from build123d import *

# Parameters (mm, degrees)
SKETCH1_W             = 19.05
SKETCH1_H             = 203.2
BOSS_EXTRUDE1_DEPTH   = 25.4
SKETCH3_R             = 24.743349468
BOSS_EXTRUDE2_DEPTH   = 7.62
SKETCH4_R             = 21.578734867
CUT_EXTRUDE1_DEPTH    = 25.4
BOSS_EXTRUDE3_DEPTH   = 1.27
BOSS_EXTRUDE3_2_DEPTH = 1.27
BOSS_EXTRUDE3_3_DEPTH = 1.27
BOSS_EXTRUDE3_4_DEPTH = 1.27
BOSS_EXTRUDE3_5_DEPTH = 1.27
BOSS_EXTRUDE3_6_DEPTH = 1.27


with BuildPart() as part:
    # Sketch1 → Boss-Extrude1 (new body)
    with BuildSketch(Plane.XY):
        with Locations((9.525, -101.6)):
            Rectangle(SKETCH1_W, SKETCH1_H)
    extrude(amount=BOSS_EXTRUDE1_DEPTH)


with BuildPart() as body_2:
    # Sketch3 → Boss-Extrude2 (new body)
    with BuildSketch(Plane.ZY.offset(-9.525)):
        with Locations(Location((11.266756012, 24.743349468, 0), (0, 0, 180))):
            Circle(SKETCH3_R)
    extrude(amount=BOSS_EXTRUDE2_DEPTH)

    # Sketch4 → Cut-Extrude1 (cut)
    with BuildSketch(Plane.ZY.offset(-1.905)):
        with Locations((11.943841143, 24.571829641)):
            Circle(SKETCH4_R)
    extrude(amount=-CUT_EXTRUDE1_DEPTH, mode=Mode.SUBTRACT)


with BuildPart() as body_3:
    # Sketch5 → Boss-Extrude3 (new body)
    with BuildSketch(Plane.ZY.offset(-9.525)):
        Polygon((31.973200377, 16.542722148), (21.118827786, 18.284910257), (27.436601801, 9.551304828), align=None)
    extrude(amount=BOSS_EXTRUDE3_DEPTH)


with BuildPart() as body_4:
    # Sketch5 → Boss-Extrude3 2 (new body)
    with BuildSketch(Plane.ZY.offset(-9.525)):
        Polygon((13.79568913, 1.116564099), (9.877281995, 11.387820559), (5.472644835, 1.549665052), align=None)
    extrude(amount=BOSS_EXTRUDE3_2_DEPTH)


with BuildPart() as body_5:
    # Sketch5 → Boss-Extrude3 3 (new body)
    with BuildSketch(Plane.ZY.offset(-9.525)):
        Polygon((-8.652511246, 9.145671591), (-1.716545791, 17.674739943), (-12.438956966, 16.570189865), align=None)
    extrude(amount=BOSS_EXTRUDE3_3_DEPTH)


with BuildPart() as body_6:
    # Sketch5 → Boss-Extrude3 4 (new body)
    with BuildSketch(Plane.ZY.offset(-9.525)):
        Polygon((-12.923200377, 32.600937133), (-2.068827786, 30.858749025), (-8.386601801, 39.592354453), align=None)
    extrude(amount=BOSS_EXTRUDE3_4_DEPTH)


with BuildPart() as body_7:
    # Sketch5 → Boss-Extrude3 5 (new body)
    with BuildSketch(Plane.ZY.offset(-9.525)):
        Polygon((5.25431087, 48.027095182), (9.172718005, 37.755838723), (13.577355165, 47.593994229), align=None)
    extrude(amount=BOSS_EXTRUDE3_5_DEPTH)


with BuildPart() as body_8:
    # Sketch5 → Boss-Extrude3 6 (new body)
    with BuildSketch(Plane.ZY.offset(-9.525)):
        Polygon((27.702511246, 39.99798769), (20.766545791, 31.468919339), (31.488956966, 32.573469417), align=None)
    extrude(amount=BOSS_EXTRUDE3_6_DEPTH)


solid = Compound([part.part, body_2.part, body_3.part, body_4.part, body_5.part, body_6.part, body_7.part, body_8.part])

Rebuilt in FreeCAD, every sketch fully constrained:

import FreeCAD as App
import Part
import Sketcher
from FreeCAD import Vector
Q = App.Units.Quantity


def add_polygon(sketch, points):
    """Adds a closed chain of lines whose ends are joined by coincident constraints."""
    first, n = sketch.GeometryCount, len(points)
    for a, b in zip(points, points[1:] + points[:1]):
        sketch.addGeometry(Part.LineSegment(App.Vector(*a, 0), App.Vector(*b, 0)), False)
    for i in range(n):
        sketch.addConstraint(Sketcher.Constraint("Coincident", first + i, 2, first + (i + 1) % n, 1))

doc = App.newDocument("Part")
body = doc.addObject("PartDesign::Body", "Body")

sketch1 = body.newObject("Sketcher::SketchObject", "Sketch")
sketch1.AttachmentSupport = (doc.getObject("XY_Plane"), [""])
sketch1.MapMode = "FlatFace"
add_polygon(sketch1, [(0, 0), (0, -203), (19, -203), (19, 0)])
sketch1.addConstraint([
    Sketcher.Constraint("Vertical", 0),
    Sketcher.Constraint("Horizontal", 1),
    Sketcher.Constraint("Vertical", 2),
    Sketcher.Constraint("Horizontal", 3),
    Sketcher.Constraint("Coincident", 3, 2, -1, 1),
    Sketcher.Constraint("DistanceY", 0, 2, 0, 1, Q("8 in")),
    Sketcher.Constraint("DistanceX", 1, 1, 1, 2, Q("0.75 in")),
])
pad1 = body.newObject("PartDesign::Pad", "Pad")
pad1.Profile = sketch1
pad1.Length = Q("1 in")
body2 = doc.addObject("PartDesign::Body", "Body001")

sketch2 = body2.newObject("Sketcher::SketchObject", "Sketch001")
sketch2.AttachmentSupport = (doc.getObject("YZ_Plane001"), [""])
sketch2.MapMode = "FlatFace"
sketch2.AttachmentOffset = App.Placement(Vector(0, 0, 0.375 * 25.4), App.Rotation())
sketch2.addGeometry(Part.Circle(Vector(25, 11, 0), Vector(0, 0, 1), 25), False)
sketch2.addConstraint([
    Sketcher.Constraint("Diameter", 0, 49.486699),
    Sketcher.Constraint("DistanceX", -1, 1, 0, 3, 24.743349),
    Sketcher.Constraint("DistanceY", -1, 1, 0, 3, 11.266756),
])
pad2 = body2.newObject("PartDesign::Pad", "Pad001")
pad2.Profile = sketch2
pad2.Length = Q("0.3 in")
pad2.Reversed = True

sketch3 = body2.newObject("Sketcher::SketchObject", "Sketch002")
sketch3.AttachmentSupport = (doc.getObject("YZ_Plane001"), [""])
sketch3.MapMode = "FlatFace"
sketch3.AttachmentOffset = App.Placement(Vector(0, 0, 0.075 * 25.4), App.Rotation())
sketch3.addGeometry(Part.Circle(Vector(25, 12, 0), Vector(0, 0, 1), 22), False)
sketch3.addConstraint([
    Sketcher.Constraint("Diameter", 0, 43.15747),
    Sketcher.Constraint("DistanceX", -1, 1, 0, 3, 24.57183),
    Sketcher.Constraint("DistanceY", -1, 1, 0, 3, 11.943841),
])
pocket1 = body2.newObject("PartDesign::Pocket", "Pocket")
pocket1.Profile = sketch3
pocket1.Length = Q("1 in")
pocket1.Reversed = True
body3 = doc.addObject("PartDesign::Body", "Body002")

sketch4 = body3.newObject("Sketcher::SketchObject", "Sketch003")
sketch4.AttachmentSupport = (doc.getObject("YZ_Plane002"), [""])
sketch4.MapMode = "FlatFace"
sketch4.AttachmentOffset = App.Placement(Vector(0, 0, 0.375 * 25.4), App.Rotation())
add_polygon(sketch4, [(17, 32), (18, 21), (10, 27)])
sketch4.addConstraint([
    Sketcher.Constraint("Distance", 0, 10.993299),
    Sketcher.Constraint("DistanceY", -1, 1, 1, 2, 27.436602),
    Sketcher.Constraint("DistanceY", -1, 1, 2, 2, 31.9732),
    Sketcher.Constraint("DistanceX", -1, 1, 0, 2, 18.28491),
    Sketcher.Constraint("DistanceX", 2, 2, 0, 2, 1.742188),
    Sketcher.Constraint("Distance", 1, 10.779153),
])
pad3 = body3.newObject("PartDesign::Pad", "Pad002")
pad3.Profile = sketch4
pad3.Length = Q("0.05 in")
pad3.Reversed = True
body4 = doc.addObject("PartDesign::Body", "Body003")

sketch5 = body4.newObject("Sketcher::SketchObject", "Sketch004")
sketch5.AttachmentSupport = (doc.getObject("YZ_Plane003"), [""])
sketch5.MapMode = "FlatFace"
sketch5.AttachmentOffset = App.Placement(Vector(0, 0, 0.375 * 25.4), App.Rotation())
add_polygon(sketch5, [(1, 14), (11, 10), (2, 5)])
sketch5.addConstraint([
    Sketcher.Constraint("Distance", 0, 10.993299),
    Sketcher.Constraint("DistanceX", 2, 2, 1, 2, 0.433101),
    Sketcher.Constraint("DistanceX", -1, 1, 0, 2, 11.387821),
    Sketcher.Constraint("DistanceY", -1, 1, 0, 2, 9.877282),
    Sketcher.Constraint("DistanceY", -1, 1, 2, 2, 13.795689),
    Sketcher.Constraint("Distance", 1, 10.779153),
])
pad4 = body4.newObject("PartDesign::Pad", "Pad003")
pad4.Profile = sketch5
pad4.Length = Q("0.05 in")
pad4.Reversed = True
body5 = doc.addObject("PartDesign::Body", "Body004")

sketch6 = body5.newObject("Sketcher::SketchObject", "Sketch005")
sketch6.AttachmentSupport = (doc.getObject("YZ_Plane004"), [""])
sketch6.MapMode = "FlatFace"
sketch6.AttachmentOffset = App.Placement(Vector(0, 0, 0.375 * 25.4), App.Rotation())
add_polygon(sketch6, [(9, -9), (18, -2), (17, -12)])
sketch6.addConstraint([
    Sketcher.Constraint("Distance", 0, 10.993299),
    Sketcher.Constraint("DistanceX", -1, 1, 0, 2, 17.67474),
    Sketcher.Constraint("DistanceX", -1, 1, 1, 2, 16.57019),
    Sketcher.Constraint("DistanceX", -1, 1, 2, 2, 9.145672),
    Sketcher.Constraint("DistanceY", 2, 2, -1, 1, 8.652511),
    Sketcher.Constraint("DistanceY", 1, 2, 0, 2, 10.722411),
])
pad5 = body5.newObject("PartDesign::Pad", "Pad004")
pad5.Profile = sketch6
pad5.Length = Q("0.05 in")
pad5.Reversed = True
body6 = doc.addObject("PartDesign::Body", "Body005")

sketch7 = body6.newObject("Sketcher::SketchObject", "Sketch006")
sketch7.AttachmentSupport = (doc.getObject("YZ_Plane005"), [""])
sketch7.MapMode = "FlatFace"
sketch7.AttachmentOffset = App.Placement(Vector(0, 0, 0.375 * 25.4), App.Rotation())
add_polygon(sketch7, [(33, -13), (31, -2), (40, -8)])
sketch7.addConstraint([
    Sketcher.Constraint("Distance", 0, 10.993299),
    Sketcher.Constraint("DistanceY", 1, 2, -1, 1, 8.386602),
    Sketcher.Constraint("DistanceY", 2, 2, -1, 1, 12.9232),
    Sketcher.Constraint("DistanceX", -1, 1, 0, 2, 30.858749),
    Sketcher.Constraint("DistanceX", 0, 2, 2, 2, 1.742188),
    Sketcher.Constraint("Distance", 1, 10.779153),
])
pad6 = body6.newObject("PartDesign::Pad", "Pad005")
pad6.Profile = sketch7
pad6.Length = Q("0.05 in")
pad6.Reversed = True
body7 = doc.addObject("PartDesign::Body", "Body006")

sketch8 = body7.newObject("Sketcher::SketchObject", "Sketch007")
sketch8.AttachmentSupport = (doc.getObject("YZ_Plane006"), [""])
sketch8.MapMode = "FlatFace"
sketch8.AttachmentOffset = App.Placement(Vector(0, 0, 0.375 * 25.4), App.Rotation())
add_polygon(sketch8, [(48, 5), (38, 9), (48, 14)])
sketch8.addConstraint([
    Sketcher.Constraint("Distance", 0, 10.993299),
    Sketcher.Constraint("DistanceX", 1, 2, 2, 2, 0.433101),
    Sketcher.Constraint("DistanceX", -1, 1, 0, 2, 37.755839),
    Sketcher.Constraint("DistanceY", -1, 1, 0, 2, 9.172718),
    Sketcher.Constraint("DistanceY", -1, 1, 2, 2, 5.254311),
    Sketcher.Constraint("Distance", 1, 10.779153),
])
pad7 = body7.newObject("PartDesign::Pad", "Pad006")
pad7.Profile = sketch8
pad7.Length = Q("0.05 in")
pad7.Reversed = True
body8 = doc.addObject("PartDesign::Body", "Body007")

sketch9 = body8.newObject("Sketcher::SketchObject", "Sketch008")
sketch9.AttachmentSupport = (doc.getObject("YZ_Plane007"), [""])
sketch9.MapMode = "FlatFace"
sketch9.AttachmentOffset = App.Placement(Vector(0, 0, 0.375 * 25.4), App.Rotation())
add_polygon(sketch9, [(40, 28), (31, 21), (33, 31)])
sketch9.addConstraint([
    Sketcher.Constraint("Distance", 0, 10.993299),
    Sketcher.Constraint("DistanceX", -1, 1, 0, 2, 31.468919),
    Sketcher.Constraint("DistanceX", -1, 1, 1, 2, 32.573469),
    Sketcher.Constraint("DistanceY", -1, 1, 2, 2, 27.702511),
    Sketcher.Constraint("DistanceY", 0, 2, 1, 2, 10.722411),
    Sketcher.Constraint("DistanceX", 1, 2, 2, 2, 7.424518),
])
pad8 = body8.newObject("PartDesign::Pad", "Pad007")
pad8.Profile = sketch9
pad8.Length = Q("0.05 in")
pad8.Reversed = True

doc.recompute()
